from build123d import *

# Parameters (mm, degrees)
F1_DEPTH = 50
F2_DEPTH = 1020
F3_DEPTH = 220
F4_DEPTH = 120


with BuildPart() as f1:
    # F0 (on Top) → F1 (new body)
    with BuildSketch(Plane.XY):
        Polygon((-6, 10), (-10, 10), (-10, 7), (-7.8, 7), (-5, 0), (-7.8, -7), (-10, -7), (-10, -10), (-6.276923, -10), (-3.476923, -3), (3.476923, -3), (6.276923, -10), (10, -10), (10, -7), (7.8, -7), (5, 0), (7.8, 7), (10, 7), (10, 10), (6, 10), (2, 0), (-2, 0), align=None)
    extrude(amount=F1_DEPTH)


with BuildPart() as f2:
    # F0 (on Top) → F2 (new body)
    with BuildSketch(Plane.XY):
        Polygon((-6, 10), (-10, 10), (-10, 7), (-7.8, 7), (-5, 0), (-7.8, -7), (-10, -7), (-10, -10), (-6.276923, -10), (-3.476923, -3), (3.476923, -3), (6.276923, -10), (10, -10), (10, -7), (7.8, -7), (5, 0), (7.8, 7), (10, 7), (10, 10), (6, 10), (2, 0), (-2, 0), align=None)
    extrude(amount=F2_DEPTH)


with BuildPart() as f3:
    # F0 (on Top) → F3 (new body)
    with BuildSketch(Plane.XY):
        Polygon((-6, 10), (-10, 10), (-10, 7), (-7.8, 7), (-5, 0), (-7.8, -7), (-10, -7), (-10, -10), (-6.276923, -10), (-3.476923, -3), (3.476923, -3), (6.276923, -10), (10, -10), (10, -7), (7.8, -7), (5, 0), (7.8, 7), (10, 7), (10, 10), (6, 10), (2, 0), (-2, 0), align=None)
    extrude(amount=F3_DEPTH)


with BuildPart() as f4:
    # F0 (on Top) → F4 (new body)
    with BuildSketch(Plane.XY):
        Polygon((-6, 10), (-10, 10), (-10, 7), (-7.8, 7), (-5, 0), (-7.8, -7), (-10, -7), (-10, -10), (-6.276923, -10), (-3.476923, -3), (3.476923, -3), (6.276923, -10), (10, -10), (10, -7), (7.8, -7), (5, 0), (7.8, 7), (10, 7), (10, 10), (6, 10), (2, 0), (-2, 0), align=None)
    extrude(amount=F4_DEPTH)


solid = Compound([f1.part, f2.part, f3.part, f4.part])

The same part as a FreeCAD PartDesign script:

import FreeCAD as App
import Part
import Sketcher
Q = App.Units.Quantity


def add_polygon(sketch, points):
    """Adds a closed chain of lines whose ends are joined by coincident constraints."""
    first, n = sketch.GeometryCount, len(points)
    for a, b in zip(points, points[1:] + points[:1]):
        sketch.addGeometry(Part.LineSegment(App.Vector(*a, 0), App.Vector(*b, 0)), False)
    for i in range(n):
        sketch.addConstraint(Sketcher.Constraint("Coincident", first + i, 2, first + (i + 1) % n, 1))

doc = App.newDocument("Part")
params = doc.addObject("Spreadsheet::Sheet", "Params")
for row, (alias, value) in enumerate([
    ("sketch1_width", "4 mm"),
    ("sketch1_height", "3 mm"),
    ("sketch1_width2", "2.2 mm"),
    ("pad1_length", "50 mm"),
    ("sketch2_width", "4 mm"),
    ("sketch2_height", "3 mm"),
    ("sketch2_width2", "2.2 mm"),
    ("pad2_length", "1020 mm"),
    ("sketch3_width", "4 mm"),
    ("sketch3_height", "3 mm"),
    ("sketch3_width2", "2.2 mm"),
    ("pad3_length", "220 mm"),
    ("sketch4_width", "4 mm"),
    ("sketch4_height", "3 mm"),
    ("sketch4_width2", "2.2 mm"),
    ("pad4_length", "120 mm"),
], start=1):
    params.set(f"A{row}", alias)
    params.set(f"B{row}", "=" + value)
    params.setAlias(f"B{row}", alias)

body = doc.addObject("PartDesign::Body", "Body")

sketch1 = doc.addObject("Sketcher::SketchObject", "Sketch")
body.addObject(sketch1)
sketch1.AttachmentSupport = (doc.XY_Plane, [""])
sketch1.MapMode = "FlatFace"
add_polygon(sketch1, [(-6, 10), (-10, 10), (-10, 7), (-7.8, 7), (-5, 0), (-7.8, -7), (-10, -7), (-10, -10), (-6.3, -10), (-3.5, -3), (3.5, -3), (6.3, -10), (10, -10), (10, -7), (7.8, -7), (5, 0), (7.8, 7), (10, 7), (10, 10), (6, 10), (2, 0), (-2, 0)])
sketch1.addConstraint([
    Sketcher.Constraint("Horizontal", 0),
    Sketcher.Constraint("Vertical", 1),
    Sketcher.Constraint("Horizontal", 2),
    Sketcher.Constraint("Horizontal", 5),
    Sketcher.Constraint("Vertical", 6),
    Sketcher.Constraint("Horizontal", 7),
    Sketcher.Constraint("Horizontal", 9),
    Sketcher.Constraint("Horizontal", 11),
    Sketcher.Constraint("Vertical", 12),
    Sketcher.Constraint("Horizontal", 13),
    Sketcher.Constraint("Horizontal", 16),
    Sketcher.Constraint("Vertical", 17),
    Sketcher.Constraint("Horizontal", 18),
    Sketcher.Constraint("Horizontal", 20),
    Sketcher.Constraint("Symmetric", 0, 2, 11, 2, -1, 1),
    Sketcher.Constraint("Symmetric", 2, 2, 13, 2, -1, 1),
    Sketcher.Constraint("Symmetric", 3, 2, 14, 2, -1, 1),
    Sketcher.Constraint("Symmetric", 4, 2, 15, 2, -1, 1),
    Sketcher.Constraint("Symmetric", 6, 2, 17, 2, -1, 1),
    Sketcher.Constraint("Symmetric", 19, 2, 20, 2, -1, 1),
    Sketcher.Constraint("Symmetric", 7, 2, 10, 2, -2),
    Sketcher.Constraint("Symmetric", 5, 2, 12, 2, -2),
    Sketcher.Constraint("PointOnObject", 3, 2, -1),
    Sketcher.Constraint("Parallel", 4, 8),
    Sketcher.Constraint("Parallel", 3, 10),
    Sketcher.Constraint("Parallel", 15, 19),
    Sketcher.Constraint("Parallel", 14, 21),
    Sketcher.Constraint("Vertical", 2, 2, 4, 2),
    Sketcher.Constraint("Equal", 18, 20),
    Sketcher.Constraint("Equal", 4, 8),
    Sketcher.Constraint("DistanceX", 0, 2, 0, 1, Q("4 mm")),
    Sketcher.Constraint("DistanceY", 1, 2, 1, 1, Q("3 mm")),
    Sketcher.Constraint("DistanceX", 2, 1, 2, 2, Q("2.2 mm")),
    Sketcher.Constraint("DistanceX", 0, 2, -1, 1, Q("10 mm")),
    Sketcher.Constraint("DistanceY", -1, 1, 0, 2, Q("10 mm")),
    Sketcher.Constraint("DistanceX", 7, 1, 7, 2, Q("3.723077 mm")),
])
sketch1.setExpression("Constraints[52]", "Params.sketch1_width")
sketch1.setExpression("Constraints[53]", "Params.sketch1_height")
sketch1.setExpression("Constraints[54]", "Params.sketch1_width2")
pad1 = doc.addObject("PartDesign::Pad", "Pad")
body.addObject(pad1)
pad1.Profile = sketch1
pad1.setExpression("Length", "Params.pad1_length")
body2 = doc.addObject("PartDesign::Body", "Body001")

sketch2 = doc.addObject("Sketcher::SketchObject", "Sketch001")
body2.addObject(sketch2)
sketch2.AttachmentSupport = (doc.getObject("XY_Plane001"), [""])
sketch2.MapMode = "FlatFace"
add_polygon(sketch2, [(-6, 10), (-10, 10), (-10, 7), (-7.8, 7), (-5, 0), (-7.8, -7), (-10, -7), (-10, -10), (-6.3, -10), (-3.5, -3), (3.5, -3), (6.3, -10), (10, -10), (10, -7), (7.8, -7), (5, 0), (7.8, 7), (10, 7), (10, 10), (6, 10), (2, 0), (-2, 0)])
sketch2.addConstraint([
    Sketcher.Constraint("Horizontal", 0),
    Sketcher.Constraint("Vertical", 1),
    Sketcher.Constraint("Horizontal", 2),
    Sketcher.Constraint("Horizontal", 5),
    Sketcher.Constraint("Vertical", 6),
    Sketcher.Constraint("Horizontal", 7),
    Sketcher.Constraint("Horizontal", 9),
    Sketcher.Constraint("Horizontal", 11),
    Sketcher.Constraint("Vertical", 12),
    Sketcher.Constraint("Horizontal", 13),
    Sketcher.Constraint("Horizontal", 16),
    Sketcher.Constraint("Vertical", 17),
    Sketcher.Constraint("Horizontal", 18),
    Sketcher.Constraint("Horizontal", 20),
    Sketcher.Constraint("Symmetric", 0, 2, 11, 2, -1, 1),
    Sketcher.Constraint("Symmetric", 2, 2, 13, 2, -1, 1),
    Sketcher.Constraint("Symmetric", 3, 2, 14, 2, -1, 1),
    Sketcher.Constraint("Symmetric", 4, 2, 15, 2, -1, 1),
    Sketcher.Constraint("Symmetric", 6, 2, 17, 2, -1, 1),
    Sketcher.Constraint("Symmetric", 19, 2, 20, 2, -1, 1),
    Sketcher.Constraint("Symmetric", 7, 2, 10, 2, -2),
    Sketcher.Constraint("Symmetric", 5, 2, 12, 2, -2),
    Sketcher.Constraint("PointOnObject", 3, 2, -1),
    Sketcher.Constraint("Parallel", 4, 8),
    Sketcher.Constraint("Parallel", 3, 10),
    Sketcher.Constraint("Parallel", 15, 19),
    Sketcher.Constraint("Parallel", 14, 21),
    Sketcher.Constraint("Vertical", 2, 2, 4, 2),
    Sketcher.Constraint("Equal", 18, 20),
    Sketcher.Constraint("Equal", 4, 8),
    Sketcher.Constraint("DistanceX", 0, 2, 0, 1, Q("4 mm")),
    Sketcher.Constraint("DistanceY", 1, 2, 1, 1, Q("3 mm")),
    Sketcher.Constraint("DistanceX", 2, 1, 2, 2, Q("2.2 mm")),
    Sketcher.Constraint("DistanceX", 0, 2, -1, 1, Q("10 mm")),
    Sketcher.Constraint("DistanceY", -1, 1, 0, 2, Q("10 mm")),
    Sketcher.Constraint("DistanceX", 7, 1, 7, 2, Q("3.723077 mm")),
])
sketch2.setExpression("Constraints[52]", "Params.sketch2_width")
sketch2.setExpression("Constraints[53]", "Params.sketch2_height")
sketch2.setExpression("Constraints[54]", "Params.sketch2_width2")
pad2 = doc.addObject("PartDesign::Pad", "Pad001")
body2.addObject(pad2)
pad2.Profile = sketch2
pad2.setExpression("Length", "Params.pad2_length")
body3 = doc.addObject("PartDesign::Body", "Body002")

sketch3 = doc.addObject("Sketcher::SketchObject", "Sketch002")
body3.addObject(sketch3)
sketch3.AttachmentSupport = (doc.getObject("XY_Plane002"), [""])
sketch3.MapMode = "FlatFace"
add_polygon(sketch3, [(-6, 10), (-10, 10), (-10, 7), (-7.8, 7), (-5, 0), (-7.8, -7), (-10, -7), (-10, -10), (-6.3, -10), (-3.5, -3), (3.5, -3), (6.3, -10), (10, -10), (10, -7), (7.8, -7), (5, 0), (7.8, 7), (10, 7), (10, 10), (6, 10), (2, 0), (-2, 0)])
sketch3.addConstraint([
    Sketcher.Constraint("Horizontal", 0),
    Sketcher.Constraint("Vertical", 1),
    Sketcher.Constraint("Horizontal", 2),
    Sketcher.Constraint("Horizontal", 5),
    Sketcher.Constraint("Vertical", 6),
    Sketcher.Constraint("Horizontal", 7),
    Sketcher.Constraint("Horizontal", 9),
    Sketcher.Constraint("Horizontal", 11),
    Sketcher.Constraint("Vertical", 12),
    Sketcher.Constraint("Horizontal", 13),
    Sketcher.Constraint("Horizontal", 16),
    Sketcher.Constraint("Vertical", 17),
    Sketcher.Constraint("Horizontal", 18),
    Sketcher.Constraint("Horizontal", 20),
    Sketcher.Constraint("Symmetric", 0, 2, 11, 2, -1, 1),
    Sketcher.Constraint("Symmetric", 2, 2, 13, 2, -1, 1),
    Sketcher.Constraint("Symmetric", 3, 2, 14, 2, -1, 1),
    Sketcher.Constraint("Symmetric", 4, 2, 15, 2, -1, 1),
    Sketcher.Constraint("Symmetric", 6, 2, 17, 2, -1, 1),
    Sketcher.Constraint("Symmetric", 19, 2, 20, 2, -1, 1),
    Sketcher.Constraint("Symmetric", 7, 2, 10, 2, -2),
    Sketcher.Constraint("Symmetric", 5, 2, 12, 2, -2),
    Sketcher.Constraint("PointOnObject", 3, 2, -1),
    Sketcher.Constraint("Parallel", 4, 8),
    Sketcher.Constraint("Parallel", 3, 10),
    Sketcher.Constraint("Parallel", 15, 19),
    Sketcher.Constraint("Parallel", 14, 21),
    Sketcher.Constraint("Vertical", 2, 2, 4, 2),
    Sketcher.Constraint("Equal", 18, 20),
    Sketcher.Constraint("Equal", 4, 8),
    Sketcher.Constraint("DistanceX", 0, 2, 0, 1, Q("4 mm")),
    Sketcher.Constraint("DistanceY", 1, 2, 1, 1, Q("3 mm")),
    Sketcher.Constraint("DistanceX", 2, 1, 2, 2, Q("2.2 mm")),
    Sketcher.Constraint("DistanceX", 0, 2, -1, 1, Q("10 mm")),
    Sketcher.Constraint("DistanceY", -1, 1, 0, 2, Q("10 mm")),
    Sketcher.Constraint("DistanceX", 7, 1, 7, 2, Q("3.723077 mm")),
])
sketch3.setExpression("Constraints[52]", "Params.sketch3_width")
sketch3.setExpression("Constraints[53]", "Params.sketch3_height")
sketch3.setExpression("Constraints[54]", "Params.sketch3_width2")
pad3 = doc.addObject("PartDesign::Pad", "Pad002")
body3.addObject(pad3)
pad3.Profile = sketch3
pad3.setExpression("Length", "Params.pad3_length")
body4 = doc.addObject("PartDesign::Body", "Body003")

sketch4 = doc.addObject("Sketcher::SketchObject", "Sketch003")
body4.addObject(sketch4)
sketch4.AttachmentSupport = (doc.getObject("XY_Plane003"), [""])
sketch4.MapMode = "FlatFace"
add_polygon(sketch4, [(-6, 10), (-10, 10), (-10, 7), (-7.8, 7), (-5, 0), (-7.8, -7), (-10, -7), (-10, -10), (-6.3, -10), (-3.5, -3), (3.5, -3), (6.3, -10), (10, -10), (10, -7), (7.8, -7), (5, 0), (7.8, 7), (10, 7), (10, 10), (6, 10), (2, 0), (-2, 0)])
sketch4.addConstraint([
    Sketcher.Constraint("Horizontal", 0),
    Sketcher.Constraint("Vertical", 1),
    Sketcher.Constraint("Horizontal", 2),
    Sketcher.Constraint("Horizontal", 5),
    Sketcher.Constraint("Vertical", 6),
    Sketcher.Constraint("Horizontal", 7),
    Sketcher.Constraint("Horizontal", 9),
    Sketcher.Constraint("Horizontal", 11),
    Sketcher.Constraint("Vertical", 12),
    Sketcher.Constraint("Horizontal", 13),
    Sketcher.Constraint("Horizontal", 16),
    Sketcher.Constraint("Vertical", 17),
    Sketcher.Constraint("Horizontal", 18),
    Sketcher.Constraint("Horizontal", 20),
    Sketcher.Constraint("Symmetric", 0, 2, 11, 2, -1, 1),
    Sketcher.Constraint("Symmetric", 2, 2, 13, 2, -1, 1),
    Sketcher.Constraint("Symmetric", 3, 2, 14, 2, -1, 1),
    Sketcher.Constraint("Symmetric", 4, 2, 15, 2, -1, 1),
    Sketcher.Constraint("Symmetric", 6, 2, 17, 2, -1, 1),
    Sketcher.Constraint("Symmetric", 19, 2, 20, 2, -1, 1),
    Sketcher.Constraint("Symmetric", 7, 2, 10, 2, -2),
    Sketcher.Constraint("Symmetric", 5, 2, 12, 2, -2),
    Sketcher.Constraint("PointOnObject", 3, 2, -1),
    Sketcher.Constraint("Parallel", 4, 8),
    Sketcher.Constraint("Parallel", 3, 10),
    Sketcher.Constraint("Parallel", 15, 19),
    Sketcher.Constraint("Parallel", 14, 21),
    Sketcher.Constraint("Vertical", 2, 2, 4, 2),
    Sketcher.Constraint("Equal", 18, 20),
    Sketcher.Constraint("Equal", 4, 8),
    Sketcher.Constraint("DistanceX", 0, 2, 0, 1, Q("4 mm")),
    Sketcher.Constraint("DistanceY", 1, 2, 1, 1, Q("3 mm")),
    Sketcher.Constraint("DistanceX", 2, 1, 2, 2, Q("2.2 mm")),
    Sketcher.Constraint("DistanceX", 0, 2, -1, 1, Q("10 mm")),
    Sketcher.Constraint("DistanceY", -1, 1, 0, 2, Q("10 mm")),
    Sketcher.Constraint("DistanceX", 7, 1, 7, 2, Q("3.723077 mm")),
])
sketch4.setExpression("Constraints[52]", "Params.sketch4_width")
sketch4.setExpression("Constraints[53]", "Params.sketch4_height")
sketch4.setExpression("Constraints[54]", "Params.sketch4_width2")
pad4 = doc.addObject("PartDesign::Pad", "Pad003")
body4.addObject(pad4)
pad4.Profile = sketch4
pad4.setExpression("Length", "Params.pad4_length")

doc.recompute()
